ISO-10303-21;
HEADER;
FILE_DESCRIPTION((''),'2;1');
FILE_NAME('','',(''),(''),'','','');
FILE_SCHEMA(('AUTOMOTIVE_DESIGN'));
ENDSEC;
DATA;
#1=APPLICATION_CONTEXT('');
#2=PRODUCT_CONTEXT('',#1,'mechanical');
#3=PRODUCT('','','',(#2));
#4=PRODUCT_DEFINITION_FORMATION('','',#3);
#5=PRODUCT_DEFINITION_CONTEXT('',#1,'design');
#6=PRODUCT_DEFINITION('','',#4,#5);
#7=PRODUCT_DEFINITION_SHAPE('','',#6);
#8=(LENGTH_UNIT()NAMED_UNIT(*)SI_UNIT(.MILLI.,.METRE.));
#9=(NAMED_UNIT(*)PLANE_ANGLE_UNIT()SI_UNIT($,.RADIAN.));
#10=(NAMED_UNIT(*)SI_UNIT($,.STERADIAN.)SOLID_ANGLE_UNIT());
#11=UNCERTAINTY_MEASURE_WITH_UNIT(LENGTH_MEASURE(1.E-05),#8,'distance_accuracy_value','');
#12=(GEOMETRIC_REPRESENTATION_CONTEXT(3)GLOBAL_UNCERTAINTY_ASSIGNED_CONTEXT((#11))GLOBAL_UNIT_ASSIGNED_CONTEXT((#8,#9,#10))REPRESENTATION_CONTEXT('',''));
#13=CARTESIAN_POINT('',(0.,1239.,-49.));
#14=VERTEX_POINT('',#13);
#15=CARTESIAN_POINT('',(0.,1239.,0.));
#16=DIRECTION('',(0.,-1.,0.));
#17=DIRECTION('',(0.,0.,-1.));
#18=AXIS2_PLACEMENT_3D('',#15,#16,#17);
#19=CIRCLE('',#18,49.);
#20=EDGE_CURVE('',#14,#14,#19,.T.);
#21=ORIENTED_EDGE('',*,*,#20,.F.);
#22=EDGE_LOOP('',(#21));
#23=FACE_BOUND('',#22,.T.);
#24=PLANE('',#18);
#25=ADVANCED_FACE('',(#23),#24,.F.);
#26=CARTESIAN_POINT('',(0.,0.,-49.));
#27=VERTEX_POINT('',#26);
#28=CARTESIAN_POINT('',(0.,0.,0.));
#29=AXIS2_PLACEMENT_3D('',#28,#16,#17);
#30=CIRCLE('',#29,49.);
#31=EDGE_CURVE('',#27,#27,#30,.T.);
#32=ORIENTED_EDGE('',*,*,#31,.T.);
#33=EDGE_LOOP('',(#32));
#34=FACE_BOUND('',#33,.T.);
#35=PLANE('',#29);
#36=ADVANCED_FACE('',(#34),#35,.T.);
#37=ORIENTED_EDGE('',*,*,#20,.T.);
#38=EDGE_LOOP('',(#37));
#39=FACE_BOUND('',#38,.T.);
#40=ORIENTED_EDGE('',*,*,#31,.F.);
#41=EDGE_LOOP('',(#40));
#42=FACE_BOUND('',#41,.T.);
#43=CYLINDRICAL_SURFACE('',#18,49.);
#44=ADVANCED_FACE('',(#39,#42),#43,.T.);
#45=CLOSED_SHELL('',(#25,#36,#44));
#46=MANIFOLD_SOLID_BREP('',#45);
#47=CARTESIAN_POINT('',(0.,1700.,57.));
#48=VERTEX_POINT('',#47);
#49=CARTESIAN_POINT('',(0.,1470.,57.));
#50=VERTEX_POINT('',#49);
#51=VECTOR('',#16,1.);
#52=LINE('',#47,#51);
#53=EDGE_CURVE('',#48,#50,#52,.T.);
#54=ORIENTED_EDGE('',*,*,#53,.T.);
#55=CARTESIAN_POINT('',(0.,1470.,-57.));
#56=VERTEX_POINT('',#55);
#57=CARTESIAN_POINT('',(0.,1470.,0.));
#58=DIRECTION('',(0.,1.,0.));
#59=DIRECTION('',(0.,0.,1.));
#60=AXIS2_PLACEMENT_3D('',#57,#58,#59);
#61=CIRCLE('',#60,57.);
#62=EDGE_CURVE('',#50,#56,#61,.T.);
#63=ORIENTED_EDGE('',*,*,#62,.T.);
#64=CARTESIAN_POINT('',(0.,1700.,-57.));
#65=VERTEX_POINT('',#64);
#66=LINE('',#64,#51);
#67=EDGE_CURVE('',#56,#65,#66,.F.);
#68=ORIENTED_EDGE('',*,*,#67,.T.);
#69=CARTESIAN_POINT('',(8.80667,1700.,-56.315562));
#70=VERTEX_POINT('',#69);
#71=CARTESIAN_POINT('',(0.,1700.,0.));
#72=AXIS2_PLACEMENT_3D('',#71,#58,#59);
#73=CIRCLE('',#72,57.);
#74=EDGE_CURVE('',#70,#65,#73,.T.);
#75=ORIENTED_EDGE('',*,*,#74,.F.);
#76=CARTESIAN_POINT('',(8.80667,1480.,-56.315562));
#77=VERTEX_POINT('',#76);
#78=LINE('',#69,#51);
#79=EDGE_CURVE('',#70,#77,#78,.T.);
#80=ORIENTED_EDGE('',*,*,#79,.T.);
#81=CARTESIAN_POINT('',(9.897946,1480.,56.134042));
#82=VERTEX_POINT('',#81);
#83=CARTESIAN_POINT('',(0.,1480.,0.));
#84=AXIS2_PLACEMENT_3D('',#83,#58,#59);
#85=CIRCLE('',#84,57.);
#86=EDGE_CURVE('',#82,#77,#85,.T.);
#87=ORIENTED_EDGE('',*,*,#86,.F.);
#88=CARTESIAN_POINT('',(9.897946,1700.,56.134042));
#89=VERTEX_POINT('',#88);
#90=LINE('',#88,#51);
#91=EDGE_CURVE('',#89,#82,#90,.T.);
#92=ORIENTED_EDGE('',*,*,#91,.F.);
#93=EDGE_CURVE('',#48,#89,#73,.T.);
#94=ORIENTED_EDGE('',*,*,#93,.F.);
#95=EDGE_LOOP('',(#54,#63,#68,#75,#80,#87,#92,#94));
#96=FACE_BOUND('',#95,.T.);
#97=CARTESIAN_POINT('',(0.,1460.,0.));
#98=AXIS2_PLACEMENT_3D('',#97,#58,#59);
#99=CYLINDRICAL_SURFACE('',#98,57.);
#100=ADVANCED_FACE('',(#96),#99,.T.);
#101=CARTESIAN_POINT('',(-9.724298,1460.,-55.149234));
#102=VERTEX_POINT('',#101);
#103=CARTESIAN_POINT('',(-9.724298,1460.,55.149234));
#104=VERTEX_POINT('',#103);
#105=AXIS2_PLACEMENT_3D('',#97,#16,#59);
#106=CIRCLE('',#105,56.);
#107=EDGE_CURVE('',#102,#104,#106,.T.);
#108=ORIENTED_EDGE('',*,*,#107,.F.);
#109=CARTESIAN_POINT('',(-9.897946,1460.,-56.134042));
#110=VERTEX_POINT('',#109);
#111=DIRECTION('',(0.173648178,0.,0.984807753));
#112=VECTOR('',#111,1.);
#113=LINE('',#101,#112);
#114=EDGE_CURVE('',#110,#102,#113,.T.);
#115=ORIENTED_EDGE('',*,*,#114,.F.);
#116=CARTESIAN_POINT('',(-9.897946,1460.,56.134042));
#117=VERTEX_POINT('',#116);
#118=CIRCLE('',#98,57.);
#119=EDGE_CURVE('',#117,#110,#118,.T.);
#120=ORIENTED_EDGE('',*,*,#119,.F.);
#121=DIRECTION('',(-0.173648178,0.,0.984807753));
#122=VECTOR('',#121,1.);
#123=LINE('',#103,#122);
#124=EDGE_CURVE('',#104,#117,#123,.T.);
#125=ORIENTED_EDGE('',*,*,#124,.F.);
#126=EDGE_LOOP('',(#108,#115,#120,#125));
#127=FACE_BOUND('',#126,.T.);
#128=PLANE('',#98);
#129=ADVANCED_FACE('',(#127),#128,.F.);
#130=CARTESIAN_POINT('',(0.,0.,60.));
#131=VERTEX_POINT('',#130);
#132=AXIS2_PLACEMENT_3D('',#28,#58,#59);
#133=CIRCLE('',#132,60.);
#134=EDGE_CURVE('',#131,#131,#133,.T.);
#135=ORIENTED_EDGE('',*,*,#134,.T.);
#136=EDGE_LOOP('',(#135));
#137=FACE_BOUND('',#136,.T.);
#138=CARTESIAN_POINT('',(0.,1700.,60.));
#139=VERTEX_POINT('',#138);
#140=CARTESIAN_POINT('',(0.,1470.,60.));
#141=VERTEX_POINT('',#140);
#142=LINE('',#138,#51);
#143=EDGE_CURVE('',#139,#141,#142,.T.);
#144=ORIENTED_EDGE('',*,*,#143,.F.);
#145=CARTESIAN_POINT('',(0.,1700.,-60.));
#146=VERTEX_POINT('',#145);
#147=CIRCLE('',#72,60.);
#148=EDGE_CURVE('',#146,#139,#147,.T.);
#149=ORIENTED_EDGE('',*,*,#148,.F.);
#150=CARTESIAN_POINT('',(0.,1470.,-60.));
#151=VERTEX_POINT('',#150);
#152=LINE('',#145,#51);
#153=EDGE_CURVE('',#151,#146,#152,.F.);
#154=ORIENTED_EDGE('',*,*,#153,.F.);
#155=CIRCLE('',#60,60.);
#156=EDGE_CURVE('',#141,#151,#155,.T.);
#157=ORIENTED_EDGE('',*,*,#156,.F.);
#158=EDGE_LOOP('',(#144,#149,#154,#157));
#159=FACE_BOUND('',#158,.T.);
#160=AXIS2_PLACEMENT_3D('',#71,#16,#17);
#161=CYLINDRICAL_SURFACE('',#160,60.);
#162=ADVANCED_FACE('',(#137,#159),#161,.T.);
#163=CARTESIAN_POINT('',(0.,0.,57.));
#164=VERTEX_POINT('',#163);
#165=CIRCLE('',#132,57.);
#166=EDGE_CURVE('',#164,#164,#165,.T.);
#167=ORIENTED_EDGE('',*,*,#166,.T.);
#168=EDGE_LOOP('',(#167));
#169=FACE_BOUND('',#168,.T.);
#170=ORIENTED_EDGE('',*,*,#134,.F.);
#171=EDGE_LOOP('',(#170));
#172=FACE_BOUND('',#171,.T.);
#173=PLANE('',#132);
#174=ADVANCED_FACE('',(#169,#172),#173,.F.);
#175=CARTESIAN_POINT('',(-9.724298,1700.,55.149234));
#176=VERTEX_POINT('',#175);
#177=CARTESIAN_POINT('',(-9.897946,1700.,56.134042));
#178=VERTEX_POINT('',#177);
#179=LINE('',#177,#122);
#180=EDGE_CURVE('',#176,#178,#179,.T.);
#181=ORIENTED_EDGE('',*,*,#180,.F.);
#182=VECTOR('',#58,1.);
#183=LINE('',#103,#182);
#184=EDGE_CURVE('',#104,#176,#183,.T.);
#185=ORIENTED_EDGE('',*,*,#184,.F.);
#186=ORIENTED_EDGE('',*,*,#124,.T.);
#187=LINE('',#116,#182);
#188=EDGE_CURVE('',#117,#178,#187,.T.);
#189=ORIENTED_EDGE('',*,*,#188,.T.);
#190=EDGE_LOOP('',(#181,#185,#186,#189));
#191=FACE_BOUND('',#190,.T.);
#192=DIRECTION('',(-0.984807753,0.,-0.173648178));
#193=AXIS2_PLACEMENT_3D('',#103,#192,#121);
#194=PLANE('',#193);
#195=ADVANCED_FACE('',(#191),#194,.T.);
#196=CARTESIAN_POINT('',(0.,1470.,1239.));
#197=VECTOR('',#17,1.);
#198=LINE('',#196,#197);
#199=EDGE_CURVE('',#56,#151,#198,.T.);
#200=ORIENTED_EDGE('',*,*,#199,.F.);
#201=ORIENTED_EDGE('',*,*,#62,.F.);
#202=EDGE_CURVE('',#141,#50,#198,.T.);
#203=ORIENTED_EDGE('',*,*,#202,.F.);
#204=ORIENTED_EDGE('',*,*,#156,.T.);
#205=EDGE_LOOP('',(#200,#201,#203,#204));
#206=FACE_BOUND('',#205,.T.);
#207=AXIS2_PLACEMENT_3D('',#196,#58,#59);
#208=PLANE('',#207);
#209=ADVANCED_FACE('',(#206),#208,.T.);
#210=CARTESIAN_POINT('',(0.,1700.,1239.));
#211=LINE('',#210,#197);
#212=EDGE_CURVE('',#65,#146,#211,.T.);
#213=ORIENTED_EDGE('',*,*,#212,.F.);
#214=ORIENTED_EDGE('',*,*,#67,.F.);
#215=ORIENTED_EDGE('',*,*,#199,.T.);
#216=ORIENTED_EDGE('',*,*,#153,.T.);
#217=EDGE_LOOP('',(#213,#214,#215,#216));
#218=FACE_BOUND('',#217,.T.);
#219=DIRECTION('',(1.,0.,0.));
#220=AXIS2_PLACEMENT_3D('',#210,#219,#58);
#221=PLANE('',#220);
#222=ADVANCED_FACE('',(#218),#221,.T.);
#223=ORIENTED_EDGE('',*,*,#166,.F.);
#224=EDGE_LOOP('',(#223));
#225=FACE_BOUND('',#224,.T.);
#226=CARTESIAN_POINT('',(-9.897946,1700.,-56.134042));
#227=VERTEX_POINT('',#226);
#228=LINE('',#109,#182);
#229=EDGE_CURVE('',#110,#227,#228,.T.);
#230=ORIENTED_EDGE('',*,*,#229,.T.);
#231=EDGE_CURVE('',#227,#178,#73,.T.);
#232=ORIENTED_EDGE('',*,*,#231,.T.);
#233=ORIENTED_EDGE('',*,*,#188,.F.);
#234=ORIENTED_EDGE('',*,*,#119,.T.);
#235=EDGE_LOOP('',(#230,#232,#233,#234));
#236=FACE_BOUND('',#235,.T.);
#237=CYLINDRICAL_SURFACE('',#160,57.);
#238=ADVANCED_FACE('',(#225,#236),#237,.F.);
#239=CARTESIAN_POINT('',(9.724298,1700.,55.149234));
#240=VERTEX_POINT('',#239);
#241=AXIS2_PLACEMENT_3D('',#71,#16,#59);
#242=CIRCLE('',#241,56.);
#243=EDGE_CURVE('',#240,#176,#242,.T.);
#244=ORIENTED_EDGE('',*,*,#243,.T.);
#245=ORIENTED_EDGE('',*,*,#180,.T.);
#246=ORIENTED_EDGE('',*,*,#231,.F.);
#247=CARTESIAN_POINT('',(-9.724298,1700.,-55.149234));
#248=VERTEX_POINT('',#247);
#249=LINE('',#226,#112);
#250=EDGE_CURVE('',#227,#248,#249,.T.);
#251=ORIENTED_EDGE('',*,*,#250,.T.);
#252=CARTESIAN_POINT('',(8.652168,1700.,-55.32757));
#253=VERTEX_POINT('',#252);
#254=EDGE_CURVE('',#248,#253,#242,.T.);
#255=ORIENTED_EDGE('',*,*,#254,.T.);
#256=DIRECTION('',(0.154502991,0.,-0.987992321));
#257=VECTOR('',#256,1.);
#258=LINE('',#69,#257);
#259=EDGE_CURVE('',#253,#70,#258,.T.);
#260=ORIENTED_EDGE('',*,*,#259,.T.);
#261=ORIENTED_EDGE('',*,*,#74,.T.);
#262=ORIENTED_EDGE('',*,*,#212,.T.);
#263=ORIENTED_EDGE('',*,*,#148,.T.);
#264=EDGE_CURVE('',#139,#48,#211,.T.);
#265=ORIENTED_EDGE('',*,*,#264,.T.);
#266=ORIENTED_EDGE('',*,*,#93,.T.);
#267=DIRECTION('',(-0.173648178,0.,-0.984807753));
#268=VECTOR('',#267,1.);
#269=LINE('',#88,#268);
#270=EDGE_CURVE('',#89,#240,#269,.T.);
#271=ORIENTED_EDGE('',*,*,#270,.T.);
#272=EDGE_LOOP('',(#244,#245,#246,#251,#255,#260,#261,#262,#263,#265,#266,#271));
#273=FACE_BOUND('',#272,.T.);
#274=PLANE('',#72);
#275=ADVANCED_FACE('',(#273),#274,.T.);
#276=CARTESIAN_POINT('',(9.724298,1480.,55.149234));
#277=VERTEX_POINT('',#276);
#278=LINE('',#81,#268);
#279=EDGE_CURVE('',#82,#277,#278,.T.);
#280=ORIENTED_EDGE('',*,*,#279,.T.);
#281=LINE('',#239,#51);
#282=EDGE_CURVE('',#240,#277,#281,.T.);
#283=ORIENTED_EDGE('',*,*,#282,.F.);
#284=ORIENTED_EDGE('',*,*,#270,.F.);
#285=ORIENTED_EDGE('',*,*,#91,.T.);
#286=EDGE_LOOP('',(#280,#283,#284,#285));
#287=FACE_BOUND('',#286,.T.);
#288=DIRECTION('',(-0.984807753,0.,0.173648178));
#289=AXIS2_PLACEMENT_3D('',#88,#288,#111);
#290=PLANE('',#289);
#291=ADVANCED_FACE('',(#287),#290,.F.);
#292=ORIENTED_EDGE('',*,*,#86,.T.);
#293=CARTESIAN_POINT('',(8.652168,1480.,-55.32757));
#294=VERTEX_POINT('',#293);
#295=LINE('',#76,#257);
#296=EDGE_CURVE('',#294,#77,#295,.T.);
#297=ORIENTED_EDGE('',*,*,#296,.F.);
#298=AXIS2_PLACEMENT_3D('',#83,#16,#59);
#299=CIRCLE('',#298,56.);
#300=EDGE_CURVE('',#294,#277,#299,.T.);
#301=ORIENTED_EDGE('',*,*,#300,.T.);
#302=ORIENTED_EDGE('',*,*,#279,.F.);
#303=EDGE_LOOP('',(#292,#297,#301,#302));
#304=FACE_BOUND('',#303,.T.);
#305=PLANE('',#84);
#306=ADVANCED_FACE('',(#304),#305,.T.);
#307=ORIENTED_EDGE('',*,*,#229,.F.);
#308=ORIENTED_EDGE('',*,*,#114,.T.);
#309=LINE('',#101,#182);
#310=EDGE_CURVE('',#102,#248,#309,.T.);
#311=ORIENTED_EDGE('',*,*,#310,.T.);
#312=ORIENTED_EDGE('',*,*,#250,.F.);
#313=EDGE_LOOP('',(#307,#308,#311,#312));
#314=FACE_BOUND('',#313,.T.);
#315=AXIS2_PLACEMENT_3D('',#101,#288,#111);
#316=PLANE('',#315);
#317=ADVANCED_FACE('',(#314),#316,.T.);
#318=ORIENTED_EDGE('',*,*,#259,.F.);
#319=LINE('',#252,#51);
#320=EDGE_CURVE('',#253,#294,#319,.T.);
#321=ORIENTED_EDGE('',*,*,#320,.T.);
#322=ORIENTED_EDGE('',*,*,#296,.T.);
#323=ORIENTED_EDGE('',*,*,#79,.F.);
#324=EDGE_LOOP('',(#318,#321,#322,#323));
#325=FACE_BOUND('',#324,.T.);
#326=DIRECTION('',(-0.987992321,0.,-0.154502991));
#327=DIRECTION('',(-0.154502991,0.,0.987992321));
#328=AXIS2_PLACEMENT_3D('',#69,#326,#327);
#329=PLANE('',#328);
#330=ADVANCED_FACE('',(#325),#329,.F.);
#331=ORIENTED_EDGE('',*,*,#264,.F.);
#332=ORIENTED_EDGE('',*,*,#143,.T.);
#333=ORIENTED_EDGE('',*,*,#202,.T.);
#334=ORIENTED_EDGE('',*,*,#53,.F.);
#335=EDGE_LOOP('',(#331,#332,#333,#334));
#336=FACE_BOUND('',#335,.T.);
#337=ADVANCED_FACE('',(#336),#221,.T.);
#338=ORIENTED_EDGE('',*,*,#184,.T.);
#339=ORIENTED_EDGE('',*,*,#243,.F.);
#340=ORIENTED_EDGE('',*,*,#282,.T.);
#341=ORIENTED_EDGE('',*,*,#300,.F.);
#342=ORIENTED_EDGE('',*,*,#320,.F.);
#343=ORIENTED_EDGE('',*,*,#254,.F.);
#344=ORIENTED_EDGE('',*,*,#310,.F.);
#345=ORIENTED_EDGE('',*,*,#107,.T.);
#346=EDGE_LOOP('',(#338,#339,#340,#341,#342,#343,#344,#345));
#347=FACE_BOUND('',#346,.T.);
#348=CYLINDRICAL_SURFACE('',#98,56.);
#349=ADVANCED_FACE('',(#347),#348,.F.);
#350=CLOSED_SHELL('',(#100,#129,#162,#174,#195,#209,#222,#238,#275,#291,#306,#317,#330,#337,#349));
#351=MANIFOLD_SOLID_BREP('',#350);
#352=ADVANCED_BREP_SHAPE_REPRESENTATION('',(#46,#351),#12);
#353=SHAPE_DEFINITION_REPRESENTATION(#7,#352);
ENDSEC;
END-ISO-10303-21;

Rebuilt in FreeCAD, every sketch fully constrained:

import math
import FreeCAD as App
import Part
import Sketcher
from FreeCAD import Vector
Q = App.Units.Quantity


def add_polygon(sketch, points):
    """Adds a closed chain of lines whose ends are joined by coincident constraints."""
    first, n = sketch.GeometryCount, len(points)
    for a, b in zip(points, points[1:] + points[:1]):
        sketch.addGeometry(Part.LineSegment(App.Vector(*a, 0), App.Vector(*b, 0)), False)
    for i in range(n):
        sketch.addConstraint(Sketcher.Constraint("Coincident", first + i, 2, first + (i + 1) % n, 1))

doc = App.newDocument("Part")
body = doc.addObject("PartDesign::Body", "Body")

# Sketch on XZ plane
sketch1 = body.newObject("Sketcher::SketchObject", "Sketch")
sketch1.AttachmentSupport = (doc.getObject("XZ_Plane"), [""])
sketch1.MapMode = "FlatFace"
sketch1.addGeometry([
    Part.Circle(Vector(0, 0, 0), Vector(0, 0, 1), 60),
    Part.Circle(Vector(0, 0, 0), Vector(0, 0, 1), 57),
], False)
sketch1.addConstraint([
    Sketcher.Constraint("Coincident", 0, 3, -1, 1),
    Sketcher.Constraint("Coincident", 1, 3, -1, 1),
    Sketcher.Constraint("Diameter", 0, 120.0),
    Sketcher.Constraint("Diameter", 1, 114.0),
])
pad1 = body.newObject("PartDesign::Pad", "Pad")
pad1.Profile = sketch1
pad1.Length = 1700
pad1.Reversed = True

# Sketch on XY plane
sketch2 = body.newObject("Sketcher::SketchObject", "Sketch001")
sketch2.AttachmentSupport = (doc.getObject("XY_Plane"), [""])
sketch2.MapMode = "FlatFace"
add_polygon(sketch2, [(0, 1700), (0, 1470), (140, 1470), (140, 1700)])  # lines 0-3
sketch2.addConstraint([
    Sketcher.Constraint("Vertical", 0),
    Sketcher.Constraint("Horizontal", 1),
    Sketcher.Constraint("Vertical", 2),
    Sketcher.Constraint("Horizontal", 3),
    Sketcher.Constraint("PointOnObject", 0, 2, -2),
    Sketcher.Constraint("DistanceY", 0, 2, 0, 1, 230.0),
    Sketcher.Constraint("DistanceY", -1, 1, 0, 2, 1470.0),
    Sketcher.Constraint("DistanceX", 1, 1, 1, 2, 139.91177),
])
pocket1 = body.newObject("PartDesign::Pocket", "Pocket")
pocket1.Profile = sketch2
pocket1.Type = "ThroughAll"
pocket1.Midplane = True

# Sketch on XZ plane
sketch3 = body.newObject("Sketcher::SketchObject", "Sketch002")
sketch3.AttachmentSupport = (doc.getObject("XZ_Plane"), [""])
sketch3.MapMode = "FlatFace"
sketch3.AttachmentOffset = App.Placement(Vector(0, 0, -1470), App.Rotation())
sketch3.addGeometry([
    Part.LineSegment(Vector(-9.7, 55.1, 0), Vector(-9.9, 56.1, 0)),
    Part.ArcOfCircle(Part.Circle(Vector(0, 0, 0), Vector(0, 0, 1), 57), math.radians(-100), math.radians(100)),
    Part.LineSegment(Vector(-9.9, -56.1, 0), Vector(-9.7, -55.1, 0)),
    Part.ArcOfCircle(Part.Circle(Vector(0, 0, 0), Vector(0, 0, 1), 56), math.radians(-100), math.radians(100)),
], False)
sketch3.addConstraint([
    Sketcher.Constraint("Coincident", 0, 2, 1, 2),
    Sketcher.Constraint("Coincident", 1, 1, 2, 1),
    Sketcher.Constraint("Coincident", 2, 2, 3, 1),
    Sketcher.Constraint("Coincident", 3, 2, 0, 1),
    Sketcher.Constraint("Coincident", 1, 3, -1, 1),
    Sketcher.Constraint("Coincident", 3, 3, -1, 1),
    Sketcher.Constraint("Vertical", 0, 2, 1, 1),
    Sketcher.Constraint("Vertical", 2, 2, 3, 2),
    Sketcher.Constraint("Radius", 1, 57.0),
    Sketcher.Constraint("Radius", 3, 56.0),
    Sketcher.Constraint("Angle", 0, Q("100 deg")),
    Sketcher.Constraint("DistanceY", -1, 1, 0, 2, 56.134042),
])
pad2 = body.newObject("PartDesign::Pad", "Pad001")
pad2.Profile = sketch3
pad2.Type = "TwoLengths"
pad2.Length = 10
pad2.Length2 = 10
pad2.Reversed = True

# Sketch on XZ plane
sketch4 = body.newObject("Sketcher::SketchObject", "Sketch003")
sketch4.AttachmentSupport = (doc.getObject("XZ_Plane"), [""])
sketch4.MapMode = "FlatFace"
sketch4.AttachmentOffset = App.Placement(Vector(0, 0, -1480), App.Rotation())
sketch4.addGeometry([
    Part.LineSegment(Vector(-9.7, 55.1, 0), Vector(-9.9, 56.1, 0)),  # 0
    Part.ArcOfCircle(Part.Circle(Vector(0, 0, 0), Vector(0, 0, 1), 57), math.radians(80), math.radians(100)),  # 1
    Part.LineSegment(Vector(9.9, 56.1, 0), Vector(9.7, 55.1, 0)),  # 2
    Part.ArcOfCircle(Part.Circle(Vector(0, 0, 0), Vector(0, 0, 1), 56), math.radians(80), math.radians(100)),  # 3
    Part.LineSegment(Vector(8.7, -55.3, 0), Vector(8.8, -56.3, 0)),  # 4
    Part.ArcOfCircle(Part.Circle(Vector(0, 0, 0), Vector(0, 0, 1), 57), math.radians(-100), math.radians(-81.11)),  # 5
    Part.LineSegment(Vector(-9.9, -56.1, 0), Vector(-9.7, -55.1, 0)),  # 6
    Part.ArcOfCircle(Part.Circle(Vector(0, 0, 0), Vector(0, 0, 1), 56), math.radians(-100), math.radians(-81.11)),  # 7
], False)
sketch4.addConstraint([
    Sketcher.Constraint("Coincident", 0, 2, 1, 2),
    Sketcher.Constraint("Coincident", 1, 1, 2, 1),
    Sketcher.Constraint("Coincident", 2, 2, 3, 1),
    Sketcher.Constraint("Coincident", 3, 2, 0, 1),
    Sketcher.Constraint("Coincident", 4, 2, 5, 2),
    Sketcher.Constraint("Coincident", 5, 1, 6, 1),
    Sketcher.Constraint("Coincident", 6, 2, 7, 1),
    Sketcher.Constraint("Coincident", 7, 2, 4, 1),
    Sketcher.Constraint("Coincident", 1, 3, -1, 1),
    Sketcher.Constraint("Coincident", 3, 3, -1, 1),
    Sketcher.Constraint("Coincident", 5, 3, -1, 1),
    Sketcher.Constraint("Coincident", 7, 3, -1, 1),
    Sketcher.Constraint("Equal", 1, 5),
    Sketcher.Constraint("Equal", 3, 7),
    Sketcher.Constraint("Parallel", 2, 6),
    Sketcher.Constraint("Horizontal", 0, 2, 1, 1),
    Sketcher.Constraint("Horizontal", 2, 2, 3, 2),
    Sketcher.Constraint("Vertical", 0, 2, 5, 1),
    Sketcher.Constraint("Radius", 1, 57.0),
    Sketcher.Constraint("Radius", 3, 56.0),
    Sketcher.Constraint("Angle", 0, Q("100 deg")),
    Sketcher.Constraint("DistanceY", -1, 1, 0, 2, 56.134042),
    Sketcher.Constraint("DistanceX", -1, 1, 4, 2, 8.80667),
    Sketcher.Constraint("DistanceY", 7, 2, -1, 1, 55.32757),
])
pad3 = body.newObject("PartDesign::Pad", "Pad002")
pad3.Profile = sketch4
pad3.Length = 220
pad3.Reversed = True
body2 = doc.addObject("PartDesign::Body", "Body001")

# Sketch on XZ plane
sketch5 = body2.newObject("Sketcher::SketchObject", "Sketch004")
sketch5.AttachmentSupport = (doc.getObject("XZ_Plane001"), [""])
sketch5.MapMode = "FlatFace"
sketch5.addGeometry(Part.Circle(Vector(0, 0, 0), Vector(0, 0, 1), 49), False)
sketch5.addConstraint([
    Sketcher.Constraint("Coincident", 0, 3, -1, 1),
    Sketcher.Constraint("Diameter", 0, 98.0),
])
pad4 = body2.newObject("PartDesign::Pad", "Pad003")
pad4.Profile = sketch5
pad4.Length = 1239
pad4.Reversed = True

doc.recompute()
